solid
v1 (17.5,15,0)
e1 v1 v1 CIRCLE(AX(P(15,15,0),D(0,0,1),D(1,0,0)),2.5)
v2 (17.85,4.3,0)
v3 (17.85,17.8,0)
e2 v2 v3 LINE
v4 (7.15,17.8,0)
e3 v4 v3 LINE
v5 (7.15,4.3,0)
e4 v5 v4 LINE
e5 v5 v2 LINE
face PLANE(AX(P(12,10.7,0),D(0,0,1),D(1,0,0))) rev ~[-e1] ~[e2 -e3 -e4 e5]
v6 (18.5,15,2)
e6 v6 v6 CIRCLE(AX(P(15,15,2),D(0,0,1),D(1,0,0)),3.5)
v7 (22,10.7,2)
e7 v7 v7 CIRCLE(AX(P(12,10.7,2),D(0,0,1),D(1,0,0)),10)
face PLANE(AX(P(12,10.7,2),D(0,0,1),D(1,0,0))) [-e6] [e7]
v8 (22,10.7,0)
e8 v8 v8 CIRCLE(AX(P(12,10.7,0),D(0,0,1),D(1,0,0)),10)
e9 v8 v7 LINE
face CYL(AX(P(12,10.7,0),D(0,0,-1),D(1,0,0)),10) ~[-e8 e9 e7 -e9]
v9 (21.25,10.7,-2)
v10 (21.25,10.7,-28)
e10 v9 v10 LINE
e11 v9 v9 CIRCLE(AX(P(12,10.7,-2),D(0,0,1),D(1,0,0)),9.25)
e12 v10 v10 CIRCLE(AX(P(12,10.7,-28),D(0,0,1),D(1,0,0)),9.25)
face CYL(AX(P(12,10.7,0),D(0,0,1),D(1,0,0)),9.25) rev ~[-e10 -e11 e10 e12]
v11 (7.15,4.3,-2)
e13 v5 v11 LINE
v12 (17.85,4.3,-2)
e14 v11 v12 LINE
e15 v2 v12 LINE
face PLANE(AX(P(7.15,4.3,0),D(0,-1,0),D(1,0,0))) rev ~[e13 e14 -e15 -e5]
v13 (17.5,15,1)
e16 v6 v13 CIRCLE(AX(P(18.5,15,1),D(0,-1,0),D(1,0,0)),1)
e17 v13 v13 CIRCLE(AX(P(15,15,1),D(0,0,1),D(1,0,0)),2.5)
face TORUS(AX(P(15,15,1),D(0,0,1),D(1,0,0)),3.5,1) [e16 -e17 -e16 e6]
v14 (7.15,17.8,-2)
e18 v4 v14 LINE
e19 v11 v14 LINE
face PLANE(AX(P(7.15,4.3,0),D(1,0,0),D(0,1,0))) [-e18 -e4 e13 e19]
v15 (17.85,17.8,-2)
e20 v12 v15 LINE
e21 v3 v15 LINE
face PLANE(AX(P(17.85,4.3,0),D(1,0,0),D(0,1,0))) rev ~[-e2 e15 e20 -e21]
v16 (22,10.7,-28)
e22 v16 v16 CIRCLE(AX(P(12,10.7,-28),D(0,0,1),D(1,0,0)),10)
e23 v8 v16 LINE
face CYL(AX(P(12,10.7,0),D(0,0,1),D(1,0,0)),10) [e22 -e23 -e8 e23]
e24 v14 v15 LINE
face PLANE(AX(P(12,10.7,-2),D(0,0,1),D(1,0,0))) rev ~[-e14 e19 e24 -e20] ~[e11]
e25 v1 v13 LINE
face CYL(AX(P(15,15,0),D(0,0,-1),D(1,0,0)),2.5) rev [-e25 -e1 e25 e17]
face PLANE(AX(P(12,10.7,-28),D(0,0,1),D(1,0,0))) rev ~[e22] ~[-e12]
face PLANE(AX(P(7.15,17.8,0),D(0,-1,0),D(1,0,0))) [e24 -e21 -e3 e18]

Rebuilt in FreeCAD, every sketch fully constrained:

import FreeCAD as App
import Part
import Sketcher


def edges_at(feature, points):
    """Names of the edges that pass closest to the given points."""
    edges = feature.Shape.Edges
    near = lambda p: min(range(len(edges)), key=lambda i: edges[i].distToShape(Part.Vertex(*p))[0])
    return sorted({f"Edge{near(p) + 1}" for p in points})

doc = App.newDocument("Part")
params = doc.addObject("Spreadsheet::Sheet", "Params")
for row, (alias, value) in enumerate([
    ("sketch1_diameter", "20 mm"),
    ("sketch1_diameter2", "18.5 mm"),
    ("pad1_length", "28 mm"),
    ("sketch2_diameter", "20 mm"),
    ("sketch2_width", "10.7 mm"),
    ("sketch2_height", "13.5 mm"),
    ("pad2_length", "2 mm"),
    ("sketch3_diameter", "20 mm"),
    ("sketch3_diameter2", "5 mm"),
    ("pad3_length", "2 mm"),
    ("fillet_radius", "1 mm"),
], start=1):
    params.set(f"A{row}", alias)
    params.set(f"B{row}", "=" + value)
    params.setAlias(f"B{row}", alias)

body = doc.addObject("PartDesign::Body", "Body")

# Sketch on XY plane
sketch1 = body.newObject("Sketcher::SketchObject", "Sketch")
sketch1.AttachmentSupport = (doc.getObject("XY_Plane"), [""])
sketch1.MapMode = "FlatFace"
sketch1.addGeometry([
    Part.Circle(App.Vector(12, 10.7, 0), App.Vector(0, 0, 1), 10),
    Part.Circle(App.Vector(12, 10.7, 0), App.Vector(0, 0, 1), 9.25),
], False)
sketch1.addConstraint([
    Sketcher.Constraint("Coincident", 1, 3, 0, 3),
    Sketcher.Constraint("Diameter", 0, 20.0),
    Sketcher.Constraint("Diameter", 1, 18.5),
    Sketcher.Constraint("DistanceX", -1, 1, 0, 3, 12.0),
    Sketcher.Constraint("DistanceY", -1, 1, 0, 3, 10.7),
])
sketch1.setExpression("Constraints[1]", "Params.sketch1_diameter")
sketch1.setExpression("Constraints[2]", "Params.sketch1_diameter2")
pad1 = body.newObject("PartDesign::Pad", "Pad")
pad1.Profile = sketch1
pad1.setExpression("Length", "Params.pad1_length")
pad1.Reversed = True

# Sketch on XY plane
sketch2 = body.newObject("Sketcher::SketchObject", "Sketch001")
sketch2.AttachmentSupport = (doc.getObject("XY_Plane"), [""])
sketch2.MapMode = "FlatFace"
sketch2.addGeometry([
    Part.Circle(App.Vector(12, 10.7, 0), App.Vector(0, 0, 1), 10),  # 0
    Part.LineSegment(App.Vector(17.85, 4.3, 0), App.Vector(7.15, 4.3, 0)),  # 1
    Part.LineSegment(App.Vector(7.15, 4.3, 0), App.Vector(7.15, 17.8, 0)),  # 2
    Part.LineSegment(App.Vector(7.15, 17.8, 0), App.Vector(17.85, 17.8, 0)),  # 3
    Part.LineSegment(App.Vector(17.85, 17.8, 0), App.Vector(17.85, 4.3, 0)),  # 4
], False)
sketch2.addConstraint([
    Sketcher.Constraint("Coincident", 1, 2, 2, 1),
    Sketcher.Constraint("Coincident", 2, 2, 3, 1),
    Sketcher.Constraint("Coincident", 3, 2, 4, 1),
    Sketcher.Constraint("Coincident", 4, 2, 1, 1),
    Sketcher.Constraint("Horizontal", 1),
    Sketcher.Constraint("Vertical", 2),
    Sketcher.Constraint("Horizontal", 3),
    Sketcher.Constraint("Vertical", 4),
    Sketcher.Constraint("Diameter", 0, 20.0),
    Sketcher.Constraint("DistanceX", 1, 2, 1, 1, 10.7),
    Sketcher.Constraint("DistanceY", 2, 1, 2, 2, 13.5),
    Sketcher.Constraint("DistanceX", -1, 1, 0, 3, 12.0),
    Sketcher.Constraint("DistanceY", -1, 1, 0, 3, 10.7),
    Sketcher.Constraint("DistanceY", -1, 1, 1, 2, 4.3),
    Sketcher.Constraint("DistanceX", -1, 1, 1, 2, 7.15),
])
sketch2.setExpression("Constraints[8]", "Params.sketch2_diameter")
sketch2.setExpression("Constraints[9]", "Params.sketch2_width")
sketch2.setExpression("Constraints[10]", "Params.sketch2_height")
pad2 = body.newObject("PartDesign::Pad", "Pad001")
pad2.Profile = sketch2
pad2.setExpression("Length", "Params.pad2_length")
pad2.Reversed = True

# Sketch on XY plane
sketch3 = body.newObject("Sketcher::SketchObject", "Sketch002")
sketch3.AttachmentSupport = (doc.getObject("XY_Plane"), [""])
sketch3.MapMode = "FlatFace"
sketch3.addGeometry([
    Part.Circle(App.Vector(12, 10.7, 0), App.Vector(0, 0, 1), 10),
    Part.Circle(App.Vector(15, 15, 0), App.Vector(0, 0, 1), 2.5),
], False)
sketch3.addConstraint([
    Sketcher.Constraint("Diameter", 0, 20.0),
    Sketcher.Constraint("Diameter", 1, 5.0),
    Sketcher.Constraint("DistanceX", -1, 1, 0, 3, 12.0),
    Sketcher.Constraint("DistanceX", -1, 1, 1, 3, 15.0),
    Sketcher.Constraint("DistanceY", -1, 1, 1, 3, 15.0),
    Sketcher.Constraint("DistanceY", -1, 1, 0, 3, 10.7),
])
sketch3.setExpression("Constraints[0]", "Params.sketch3_diameter")
sketch3.setExpression("Constraints[1]", "Params.sketch3_diameter2")
pad3 = body.newObject("PartDesign::Pad", "Pad002")
pad3.Profile = sketch3
pad3.setExpression("Length", "Params.pad3_length")
doc.recompute()

fillet = body.newObject("PartDesign::Fillet", "Fillet")
fillet.Base = (pad3, edges_at(pad3, [(12.5, 15, 2)]))
fillet.setExpression("Radius", "Params.fillet_radius")

doc.recompute()
